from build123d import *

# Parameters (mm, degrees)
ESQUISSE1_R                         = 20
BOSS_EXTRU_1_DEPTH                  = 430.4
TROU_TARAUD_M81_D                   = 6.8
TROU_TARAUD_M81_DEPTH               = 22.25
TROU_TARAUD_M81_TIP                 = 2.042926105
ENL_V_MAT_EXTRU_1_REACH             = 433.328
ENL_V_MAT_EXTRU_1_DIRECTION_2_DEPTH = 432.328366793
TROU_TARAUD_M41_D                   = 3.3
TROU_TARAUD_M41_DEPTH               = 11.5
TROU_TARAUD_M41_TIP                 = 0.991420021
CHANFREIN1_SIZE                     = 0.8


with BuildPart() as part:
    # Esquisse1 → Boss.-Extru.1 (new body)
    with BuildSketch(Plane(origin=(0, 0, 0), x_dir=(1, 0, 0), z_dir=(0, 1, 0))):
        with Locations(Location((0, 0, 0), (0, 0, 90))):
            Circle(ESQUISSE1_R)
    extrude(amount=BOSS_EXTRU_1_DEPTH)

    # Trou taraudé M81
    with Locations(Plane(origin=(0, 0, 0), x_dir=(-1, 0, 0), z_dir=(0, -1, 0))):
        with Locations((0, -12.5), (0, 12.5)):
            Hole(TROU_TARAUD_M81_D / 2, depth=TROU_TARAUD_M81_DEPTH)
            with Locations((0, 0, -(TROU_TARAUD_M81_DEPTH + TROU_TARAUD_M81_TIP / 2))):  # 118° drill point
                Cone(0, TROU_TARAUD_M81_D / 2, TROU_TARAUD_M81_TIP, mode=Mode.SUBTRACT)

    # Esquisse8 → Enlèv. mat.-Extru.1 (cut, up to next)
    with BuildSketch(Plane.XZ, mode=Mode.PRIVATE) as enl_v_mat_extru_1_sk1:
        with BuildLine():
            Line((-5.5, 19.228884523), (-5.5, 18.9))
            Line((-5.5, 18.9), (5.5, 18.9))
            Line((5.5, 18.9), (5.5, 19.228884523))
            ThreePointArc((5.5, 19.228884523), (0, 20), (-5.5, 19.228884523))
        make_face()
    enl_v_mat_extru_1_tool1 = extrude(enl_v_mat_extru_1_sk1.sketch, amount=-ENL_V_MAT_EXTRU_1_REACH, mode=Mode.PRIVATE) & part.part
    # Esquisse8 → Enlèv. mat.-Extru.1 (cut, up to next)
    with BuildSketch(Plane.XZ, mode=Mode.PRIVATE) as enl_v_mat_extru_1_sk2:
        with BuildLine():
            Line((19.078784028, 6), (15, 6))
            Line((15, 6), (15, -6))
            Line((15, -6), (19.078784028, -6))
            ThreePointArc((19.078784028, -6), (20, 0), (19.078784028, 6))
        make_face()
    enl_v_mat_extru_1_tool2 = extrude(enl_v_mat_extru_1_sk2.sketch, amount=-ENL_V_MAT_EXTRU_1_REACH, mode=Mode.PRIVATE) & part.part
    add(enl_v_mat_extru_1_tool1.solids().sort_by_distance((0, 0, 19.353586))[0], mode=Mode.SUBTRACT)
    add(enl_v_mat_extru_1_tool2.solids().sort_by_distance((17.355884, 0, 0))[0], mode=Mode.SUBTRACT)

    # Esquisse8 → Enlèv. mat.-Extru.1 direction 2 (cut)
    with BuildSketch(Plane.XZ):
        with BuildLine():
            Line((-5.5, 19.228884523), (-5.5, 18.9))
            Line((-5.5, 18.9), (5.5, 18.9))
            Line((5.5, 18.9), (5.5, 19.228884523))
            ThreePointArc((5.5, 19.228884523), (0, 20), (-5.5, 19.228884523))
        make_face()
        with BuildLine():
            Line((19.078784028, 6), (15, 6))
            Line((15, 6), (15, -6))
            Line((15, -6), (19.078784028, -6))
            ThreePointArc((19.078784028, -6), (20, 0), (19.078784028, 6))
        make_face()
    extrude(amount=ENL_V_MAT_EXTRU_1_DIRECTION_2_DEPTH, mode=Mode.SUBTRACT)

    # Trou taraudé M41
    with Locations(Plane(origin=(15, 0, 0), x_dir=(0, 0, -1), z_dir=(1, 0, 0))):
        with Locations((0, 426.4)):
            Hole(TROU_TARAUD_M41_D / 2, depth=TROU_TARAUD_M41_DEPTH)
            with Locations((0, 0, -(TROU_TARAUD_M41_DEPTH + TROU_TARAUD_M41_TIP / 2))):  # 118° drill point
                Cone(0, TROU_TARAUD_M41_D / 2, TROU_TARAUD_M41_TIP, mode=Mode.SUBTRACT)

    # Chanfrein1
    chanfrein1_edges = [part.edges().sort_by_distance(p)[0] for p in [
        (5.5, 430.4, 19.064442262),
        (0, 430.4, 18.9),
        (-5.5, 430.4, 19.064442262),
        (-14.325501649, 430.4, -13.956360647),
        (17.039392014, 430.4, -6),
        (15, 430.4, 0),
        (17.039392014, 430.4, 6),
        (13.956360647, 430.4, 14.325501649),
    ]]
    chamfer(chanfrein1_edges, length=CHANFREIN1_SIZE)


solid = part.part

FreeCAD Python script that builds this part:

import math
import FreeCAD as App
import Part
import Sketcher
Q = App.Units.Quantity


def edges_at(feature, points):
    """Names of the edges that pass closest to the given points."""
    edges = feature.Shape.Edges
    near = lambda p: min(range(len(edges)), key=lambda i: edges[i].distToShape(Part.Vertex(*p))[0])
    return sorted({f"Edge{near(p) + 1}" for p in points})

doc = App.newDocument("Part")
body = doc.addObject("PartDesign::Body", "Body")

# Sketch on XZ plane
sketch1 = body.newObject("Sketcher::SketchObject", "Sketch")
sketch1.AttachmentSupport = (doc.getObject("XZ_Plane"), [""])
sketch1.MapMode = "FlatFace"
sketch1.addGeometry(Part.Circle(App.Vector(0, 0, 0), App.Vector(0, 0, 1), 20), False)
sketch1.addConstraint([
    Sketcher.Constraint("Coincident", 0, 3, -1, 1),
    Sketcher.Constraint("Diameter", 0, Q("40 mm")),
])
pad1 = body.newObject("PartDesign::Pad", "Pad")
pad1.Profile = sketch1
pad1.Length = 430.4
pad1.Reversed = True

# Sketch on XZ plane
sketch2 = body.newObject("Sketcher::SketchObject", "Sketch001")
sketch2.AttachmentSupport = (doc.getObject("XZ_Plane"), [""])
sketch2.MapMode = "FlatFace"
sketch2.addGeometry([
    Part.Circle(App.Vector(0, 12.5, 0), App.Vector(0, 0, 1), 3.4),
    Part.Circle(App.Vector(0, -12.5, 0), App.Vector(0, 0, 1), 3.4),
], False)
sketch2.addConstraint([
    Sketcher.Constraint("Equal", 0, 1),
    Sketcher.Constraint("Symmetric", 0, 3, 1, 3, -1, 1),
    Sketcher.Constraint("PointOnObject", 0, 3, -2),
    Sketcher.Constraint("Diameter", 0, Q("6.8 mm")),
    Sketcher.Constraint("DistanceY", 1, 3, 0, 3, Q("25 mm")),
])
doc.recompute()
hole = body.newObject("PartDesign::Hole", "Hole")
hole.Profile = sketch2
hole.ThreadType = "None"
hole.Diameter = 6.8
hole.DepthType = "Dimension"
hole.Depth = 22.25
hole.DrillPoint = "Angled"
hole.DrillPointAngle = 118

# Sketch on XZ plane
sketch3 = body.newObject("Sketcher::SketchObject", "Sketch002")
sketch3.AttachmentSupport = (doc.getObject("XZ_Plane"), [""])
sketch3.MapMode = "FlatFace"
sketch3.addGeometry([
    Part.LineSegment(App.Vector(-5.5, 19.23, 0), App.Vector(-5.5, 18.9, 0)),
    Part.LineSegment(App.Vector(-5.5, 18.9, 0), App.Vector(5.5, 18.9, 0)),
    Part.LineSegment(App.Vector(5.5, 18.9, 0), App.Vector(5.5, 19.23, 0)),
    Part.ArcOfCircle(Part.Circle(App.Vector(0, 0, 0), App.Vector(0, 0, 1), 20), math.radians(74), math.radians(106)),
], False)
sketch3.addConstraint([
    Sketcher.Constraint("Coincident", 0, 2, 1, 1),
    Sketcher.Constraint("Coincident", 1, 2, 2, 1),
    Sketcher.Constraint("Coincident", 2, 2, 3, 1),
    Sketcher.Constraint("Coincident", 3, 2, 0, 1),
    Sketcher.Constraint("Vertical", 0),
    Sketcher.Constraint("Horizontal", 1),
    Sketcher.Constraint("Vertical", 2),
    Sketcher.Constraint("Coincident", 3, 3, -1, 1),
    Sketcher.Constraint("Horizontal", 2, 2, 3, 2),
    Sketcher.Constraint("Radius", 3, Q("20 mm")),
    Sketcher.Constraint("DistanceX", 1, 1, 1, 2, Q("11 mm")),
    Sketcher.Constraint("DistanceY", -1, 1, 0, 2, Q("18.9 mm")),
])
pocket1 = body.newObject("PartDesign::Pocket", "Pocket")
pocket1.Profile = sketch3
pocket1.Type = "UpToFirst"

# Sketch on XZ plane
sketch4 = body.newObject("Sketcher::SketchObject", "Sketch003")
sketch4.AttachmentSupport = (doc.getObject("XZ_Plane"), [""])
sketch4.MapMode = "FlatFace"
sketch4.addGeometry([
    Part.LineSegment(App.Vector(19.1, 6, 0), App.Vector(15, 6, 0)),
    Part.LineSegment(App.Vector(15, 6, 0), App.Vector(15, -6, 0)),
    Part.LineSegment(App.Vector(15, -6, 0), App.Vector(19.1, -6, 0)),
    Part.ArcOfCircle(Part.Circle(App.Vector(0, 0, 0), App.Vector(0, 0, 1), 20), math.radians(-17), math.radians(17)),
], False)
sketch4.addConstraint([
    Sketcher.Constraint("Coincident", 0, 2, 1, 1),
    Sketcher.Constraint("Coincident", 1, 2, 2, 1),
    Sketcher.Constraint("Coincident", 2, 2, 3, 1),
    Sketcher.Constraint("Coincident", 3, 2, 0, 1),
    Sketcher.Constraint("Horizontal", 0),
    Sketcher.Constraint("Vertical", 1),
    Sketcher.Constraint("Horizontal", 2),
    Sketcher.Constraint("Coincident", 3, 3, -1, 1),
    Sketcher.Constraint("Vertical", 2, 2, 3, 2),
    Sketcher.Constraint("Radius", 3, Q("20 mm")),
    Sketcher.Constraint("DistanceY", 1, 2, 1, 1, Q("12 mm")),
    Sketcher.Constraint("DistanceX", -1, 1, 0, 2, Q("15 mm")),
])
pocket2 = body.newObject("PartDesign::Pocket", "Pocket001")
pocket2.Profile = sketch4
pocket2.Type = "UpToFirst"

# Sketch on XZ plane
sketch5 = body.newObject("Sketcher::SketchObject", "Sketch004")
sketch5.AttachmentSupport = (doc.getObject("XZ_Plane"), [""])
sketch5.MapMode = "FlatFace"
sketch5.addGeometry([
    Part.LineSegment(App.Vector(-5.5, 19.23, 0), App.Vector(-5.5, 18.9, 0)),  # 0
    Part.LineSegment(App.Vector(-5.5, 18.9, 0), App.Vector(5.5, 18.9, 0)),  # 1
    Part.LineSegment(App.Vector(5.5, 18.9, 0), App.Vector(5.5, 19.23, 0)),  # 2
    Part.ArcOfCircle(Part.Circle(App.Vector(0, 0, 0), App.Vector(0, 0, 1), 20), math.radians(74), math.radians(106)),  # 3
    Part.LineSegment(App.Vector(19.08, 6, 0), App.Vector(15, 6, 0)),  # 4
    Part.LineSegment(App.Vector(15, 6, 0), App.Vector(15, -6, 0)),  # 5
    Part.LineSegment(App.Vector(15, -6, 0), App.Vector(19.08, -6, 0)),  # 6
    Part.ArcOfCircle(Part.Circle(App.Vector(0, 0, 0), App.Vector(0, 0, 1), 20), math.radians(-17), math.radians(17)),  # 7
], False)
sketch5.addConstraint([
    Sketcher.Constraint("Coincident", 0, 2, 1, 1),
    Sketcher.Constraint("Coincident", 1, 2, 2, 1),
    Sketcher.Constraint("Coincident", 2, 2, 3, 1),
    Sketcher.Constraint("Coincident", 3, 2, 0, 1),
    Sketcher.Constraint("Coincident", 4, 2, 5, 1),
    Sketcher.Constraint("Coincident", 5, 2, 6, 1),
    Sketcher.Constraint("Coincident", 6, 2, 7, 1),
    Sketcher.Constraint("Coincident", 7, 2, 4, 1),
    Sketcher.Constraint("Vertical", 0),
    Sketcher.Constraint("Horizontal", 1),
    Sketcher.Constraint("Vertical", 2),
    Sketcher.Constraint("Horizontal", 4),
    Sketcher.Constraint("Vertical", 5),
    Sketcher.Constraint("Horizontal", 6),
    Sketcher.Constraint("Coincident", 3, 3, -1, 1),
    Sketcher.Constraint("Coincident", 7, 3, -1, 1),
    Sketcher.Constraint("Equal", 3, 7),
    Sketcher.Constraint("Horizontal", 2, 2, 3, 2),
    Sketcher.Constraint("Vertical", 6, 2, 7, 2),
    Sketcher.Constraint("Radius", 3, Q("20 mm")),
    Sketcher.Constraint("DistanceX", 1, 1, 1, 2, Q("11 mm")),
    Sketcher.Constraint("DistanceY", 5, 2, 5, 1, Q("12 mm")),
    Sketcher.Constraint("DistanceX", -1, 1, 4, 2, Q("15 mm")),
    Sketcher.Constraint("DistanceY", -1, 1, 0, 2, Q("18.9 mm")),
])
pocket3 = body.newObject("PartDesign::Pocket", "Pocket002")
pocket3.Profile = sketch5
pocket3.Length = 432.328367
pocket3.Reversed = True

# Sketch on YZ plane
sketch6 = body.newObject("Sketcher::SketchObject", "Sketch005")
sketch6.AttachmentSupport = (doc.getObject("YZ_Plane"), [""])
sketch6.MapMode = "FlatFace"
sketch6.AttachmentOffset = App.Placement(App.Vector(0, 0, 15), App.Rotation())
sketch6.addGeometry(Part.Circle(App.Vector(426.4, 0, 0), App.Vector(0, 0, 1), 1.6), False)
sketch6.addConstraint([
    Sketcher.Constraint("PointOnObject", 0, 3, -1),
    Sketcher.Constraint("Diameter", 0, Q("3.3 mm")),
    Sketcher.Constraint("DistanceX", -1, 1, 0, 3, Q("426.4 mm")),
])
doc.recompute()
hole2 = body.newObject("PartDesign::Hole", "Hole001")
hole2.Profile = sketch6
hole2.ThreadType = "None"
hole2.Diameter = 3.3
hole2.DepthType = "Dimension"
hole2.Depth = 11.5
hole2.DrillPoint = "Angled"
hole2.DrillPointAngle = 118
doc.recompute()

chamfer = body.newObject("PartDesign::Chamfer", "Chamfer")
chamfer.Base = (hole2, edges_at(hole2, [
    (5.5, 430.4, 19.064),
    (0, 430.4, 18.9),
    (-5.5, 430.4, 19.064),
    (-14.326, 430.4, -13.956),
    (17.039, 430.4, -6),
    (15, 430.4, 0),
    (17.039, 430.4, 6),
    (13.956, 430.4, 14.326),
]))
chamfer.Size = 0.8

doc.recompute()
